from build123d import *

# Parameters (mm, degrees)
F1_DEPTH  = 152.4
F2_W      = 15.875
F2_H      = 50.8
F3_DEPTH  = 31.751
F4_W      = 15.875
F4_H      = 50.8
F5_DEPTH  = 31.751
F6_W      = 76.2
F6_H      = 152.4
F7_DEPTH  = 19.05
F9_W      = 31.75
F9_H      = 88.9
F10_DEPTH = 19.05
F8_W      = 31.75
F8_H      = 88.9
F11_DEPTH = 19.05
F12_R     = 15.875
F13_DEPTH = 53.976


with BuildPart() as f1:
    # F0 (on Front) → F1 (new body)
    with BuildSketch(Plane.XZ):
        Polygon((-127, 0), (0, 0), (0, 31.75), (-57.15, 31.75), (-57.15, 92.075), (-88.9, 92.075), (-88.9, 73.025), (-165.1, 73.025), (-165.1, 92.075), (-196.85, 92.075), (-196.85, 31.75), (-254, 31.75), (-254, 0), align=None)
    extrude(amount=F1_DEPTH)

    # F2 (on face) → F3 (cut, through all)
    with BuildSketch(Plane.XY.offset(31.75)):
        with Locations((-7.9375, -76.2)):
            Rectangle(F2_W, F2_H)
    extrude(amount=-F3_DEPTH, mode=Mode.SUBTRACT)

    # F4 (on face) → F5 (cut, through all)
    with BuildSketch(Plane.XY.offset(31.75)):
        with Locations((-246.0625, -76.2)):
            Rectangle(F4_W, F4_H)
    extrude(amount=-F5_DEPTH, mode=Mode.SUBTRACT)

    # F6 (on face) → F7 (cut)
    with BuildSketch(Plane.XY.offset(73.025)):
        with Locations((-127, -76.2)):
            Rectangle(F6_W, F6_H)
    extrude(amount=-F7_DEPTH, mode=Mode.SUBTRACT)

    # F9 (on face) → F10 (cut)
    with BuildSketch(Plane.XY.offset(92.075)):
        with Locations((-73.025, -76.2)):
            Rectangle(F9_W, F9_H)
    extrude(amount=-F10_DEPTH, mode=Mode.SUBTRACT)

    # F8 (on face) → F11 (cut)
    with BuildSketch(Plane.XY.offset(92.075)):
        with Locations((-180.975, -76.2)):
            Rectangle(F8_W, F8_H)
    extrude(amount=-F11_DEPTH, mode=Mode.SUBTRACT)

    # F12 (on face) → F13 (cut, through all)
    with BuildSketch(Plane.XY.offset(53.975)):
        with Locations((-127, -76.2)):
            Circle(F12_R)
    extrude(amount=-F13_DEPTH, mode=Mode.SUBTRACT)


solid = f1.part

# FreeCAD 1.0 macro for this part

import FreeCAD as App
import Part
import Sketcher
from FreeCAD import Vector
Q = App.Units.Quantity

doc = App.newDocument("Part")
params = doc.addObject("Spreadsheet::Sheet", "Params")
for row, (alias, value) in enumerate([
    ("sketch1_width", "3 in"),
    ("sketch1_width2", "10 in"),
    ("sketch1_width3", "2.25 in"),
    ("sketch1_height", "0.75 in"),
    ("sketch1_height2", "2.375 in"),
    ("pad1_length", "6 in"),
    ("sketch2_height", "2 in"),
    ("sketch2_width", "0.625 in"),
    ("sketch3_height", "2 in"),
    ("sketch3_width", "0.625 in"),
    ("sketch4_width", "3 in"),
    ("sketch4_height", "6 in"),
    ("pocket3_length", "0.75 in"),
    ("sketch5_height", "3.5 in"),
    ("sketch5_width", "1.25 in"),
    ("pocket4_length", "0.75 in"),
    ("sketch6_height", "3.5 in"),
    ("sketch6_width", "1.25 in"),
    ("pocket5_length", "0.75 in"),
    ("sketch7_diameter", "1.25 in"),
], start=1):
    params.set(f"A{row}", alias)
    params.set(f"B{row}", "=" + value)
    params.setAlias(f"B{row}", alias)

body = doc.addObject("PartDesign::Body", "Body")

# Sketch on XZ plane
sketch1 = body.newObject("Sketcher::SketchObject", "Sketch")
sketch1.AttachmentSupport = (doc.getObject("XZ_Plane"), [""])
sketch1.MapMode = "FlatFace"
sketch1.addGeometry([
    Part.LineSegment(Vector(0, 0, 0), Vector(0, 31.75, 0)),  # 0
    Part.LineSegment(Vector(0, 31.75, 0), Vector(-57.15, 31.75, 0)),  # 1
    Part.LineSegment(Vector(-57.15, 31.75, 0), Vector(-57.15, 92.075, 0)),  # 2
    Part.LineSegment(Vector(-57.15, 92.075, 0), Vector(-88.9, 92.075, 0)),  # 3
    Part.LineSegment(Vector(-88.9, 92.075, 0), Vector(-88.9, 73.025, 0)),  # 4
    Part.LineSegment(Vector(-88.9, 73.025, 0), Vector(-165.1, 73.025, 0)),  # 5
    Part.LineSegment(Vector(-165.1, 73.025, 0), Vector(-165.1, 92.075, 0)),  # 6
    Part.LineSegment(Vector(-165.1, 92.075, 0), Vector(-196.85, 92.075, 0)),  # 7
    Part.LineSegment(Vector(-196.85, 92.075, 0), Vector(-196.85, 31.75, 0)),  # 8
    Part.LineSegment(Vector(-196.85, 31.75, 0), Vector(-254, 31.75, 0)),  # 9
    Part.LineSegment(Vector(-254, 31.75, 0), Vector(-254, 0, 0)),  # 10
    Part.LineSegment(Vector(-254, 0, 0), Vector(0, 0, 0)),  # 11
], False)
sketch1.addConstraint([
    Sketcher.Constraint("Coincident", 0, 2, 1, 1),
    Sketcher.Constraint("Coincident", 1, 2, 2, 1),
    Sketcher.Constraint("Coincident", 2, 2, 3, 1),
    Sketcher.Constraint("Coincident", 3, 2, 4, 1),
    Sketcher.Constraint("Coincident", 4, 2, 5, 1),
    Sketcher.Constraint("Coincident", 5, 2, 6, 1),
    Sketcher.Constraint("Coincident", 6, 2, 7, 1),
    Sketcher.Constraint("Coincident", 7, 2, 8, 1),
    Sketcher.Constraint("Coincident", 8, 2, 9, 1),
    Sketcher.Constraint("Coincident", 9, 2, 10, 1),
    Sketcher.Constraint("Coincident", 10, 2, 11, 1),
    Sketcher.Constraint("Coincident", 11, 2, 0, 1),
    Sketcher.Constraint("Vertical", 0),
    Sketcher.Constraint("Horizontal", 1),
    Sketcher.Constraint("Vertical", 2),
    Sketcher.Constraint("Horizontal", 3),
    Sketcher.Constraint("Vertical", 4),
    Sketcher.Constraint("Horizontal", 5),
    Sketcher.Constraint("Vertical", 6),
    Sketcher.Constraint("Horizontal", 7),
    Sketcher.Constraint("Vertical", 8),
    Sketcher.Constraint("Horizontal", 9),
    Sketcher.Constraint("Vertical", 10),
    Sketcher.Constraint("Horizontal", 11),
    Sketcher.Constraint("Coincident", 11, 2, -1, 1),
    Sketcher.Constraint("Horizontal", 3, 2, 6, 2),
    Sketcher.Constraint("Horizontal", 1, 2, 8, 2),
    Sketcher.Constraint("Equal", 3, 7),
    Sketcher.Constraint("Equal", 1, 9),
    Sketcher.Constraint("Equal", 7, 0),
    Sketcher.Constraint("DistanceX", 5, 2, 5, 1, Q("3 in")),
    Sketcher.Constraint("DistanceX", 11, 1, 11, 2, Q("10 in")),
    Sketcher.Constraint("DistanceX", 1, 2, 1, 1, Q("2.25 in")),
    Sketcher.Constraint("DistanceY", 4, 2, 4, 1, Q("0.75 in")),
    Sketcher.Constraint("DistanceY", 2, 1, 2, 2, Q("2.375 in")),
])
sketch1.setExpression("Constraints[30]", "Params.sketch1_width")
sketch1.setExpression("Constraints[31]", "Params.sketch1_width2")
sketch1.setExpression("Constraints[32]", "Params.sketch1_width3")
sketch1.setExpression("Constraints[33]", "Params.sketch1_height")
sketch1.setExpression("Constraints[34]", "Params.sketch1_height2")
pad1 = body.newObject("PartDesign::Pad", "Pad")
pad1.Profile = sketch1
pad1.setExpression("Length", "Params.pad1_length")

# Sketch on XY plane
sketch2 = body.newObject("Sketcher::SketchObject", "Sketch001")
sketch2.AttachmentSupport = (doc.getObject("XY_Plane"), [""])
sketch2.MapMode = "FlatFace"
sketch2.AttachmentOffset = App.Placement(Vector(0, 0, 1.25 * 25.4), App.Rotation())
sketch2.addGeometry([
    Part.LineSegment(Vector(-15.875, -50.8, 0), Vector(-15.875, -101.6, 0)),
    Part.LineSegment(Vector(-15.875, -101.6, 0), Vector(0, -101.6, 0)),
    Part.LineSegment(Vector(0, -101.6, 0), Vector(0, -50.8, 0)),
    Part.LineSegment(Vector(0, -50.8, 0), Vector(-15.875, -50.8, 0)),
], False)
sketch2.addConstraint([
    Sketcher.Constraint("Coincident", 0, 2, 1, 1),
    Sketcher.Constraint("Coincident", 1, 2, 2, 1),
    Sketcher.Constraint("Coincident", 2, 2, 3, 1),
    Sketcher.Constraint("Coincident", 3, 2, 0, 1),
    Sketcher.Constraint("Vertical", 0),
    Sketcher.Constraint("Horizontal", 1),
    Sketcher.Constraint("Vertical", 2),
    Sketcher.Constraint("Horizontal", 3),
    Sketcher.Constraint("PointOnObject", 1, 2, -2),
    Sketcher.Constraint("DistanceY", 0, 2, 0, 1, Q("2 in")),
    Sketcher.Constraint("DistanceY", 0, 2, -1, 1, Q("4 in")),
    Sketcher.Constraint("DistanceX", 1, 1, 1, 2, Q("0.625 in")),
])
sketch2.setExpression("Constraints[9]", "Params.sketch2_height")
sketch2.setExpression("Constraints[11]", "Params.sketch2_width")
pocket1 = body.newObject("PartDesign::Pocket", "Pocket")
pocket1.Profile = sketch2
pocket1.Type = "ThroughAll"

# Sketch on XY plane
sketch3 = body.newObject("Sketcher::SketchObject", "Sketch002")
sketch3.AttachmentSupport = (doc.getObject("XY_Plane"), [""])
sketch3.MapMode = "FlatFace"
sketch3.AttachmentOffset = App.Placement(Vector(0, 0, 1.25 * 25.4), App.Rotation())
sketch3.addGeometry([
    Part.LineSegment(Vector(-254, -50.8, 0), Vector(-254, -101.6, 0)),
    Part.LineSegment(Vector(-254, -101.6, 0), Vector(-238.125, -101.6, 0)),
    Part.LineSegment(Vector(-238.125, -101.6, 0), Vector(-238.125, -50.8, 0)),
    Part.LineSegment(Vector(-238.125, -50.8, 0), Vector(-254, -50.8, 0)),
], False)
sketch3.addConstraint([
    Sketcher.Constraint("Coincident", 0, 2, 1, 1),
    Sketcher.Constraint("Coincident", 1, 2, 2, 1),
    Sketcher.Constraint("Coincident", 2, 2, 3, 1),
    Sketcher.Constraint("Coincident", 3, 2, 0, 1),
    Sketcher.Constraint("Vertical", 0),
    Sketcher.Constraint("Horizontal", 1),
    Sketcher.Constraint("Vertical", 2),
    Sketcher.Constraint("Horizontal", 3),
    Sketcher.Constraint("DistanceY", 0, 2, 0, 1, Q("2 in")),
    Sketcher.Constraint("DistanceX", 0, 2, -1, 1, Q("10 in")),
    Sketcher.Constraint("DistanceY", 0, 2, -1, 1, Q("4 in")),
    Sketcher.Constraint("DistanceX", 1, 1, 1, 2, Q("0.625 in")),
])
sketch3.setExpression("Constraints[8]", "Params.sketch3_height")
sketch3.setExpression("Constraints[11]", "Params.sketch3_width")
pocket2 = body.newObject("PartDesign::Pocket", "Pocket001")
pocket2.Profile = sketch3
pocket2.Type = "ThroughAll"

# Sketch on XY plane
sketch4 = body.newObject("Sketcher::SketchObject", "Sketch003")
sketch4.AttachmentSupport = (doc.getObject("XY_Plane"), [""])
sketch4.MapMode = "FlatFace"
sketch4.AttachmentOffset = App.Placement(Vector(0, 0, 2.875 * 25.4), App.Rotation())
sketch4.addGeometry([
    Part.LineSegment(Vector(-165.1, 0, 0), Vector(-165.1, -152.4, 0)),
    Part.LineSegment(Vector(-165.1, -152.4, 0), Vector(-88.9, -152.4, 0)),
    Part.LineSegment(Vector(-88.9, -152.4, 0), Vector(-88.9, 0, 0)),
    Part.LineSegment(Vector(-88.9, 0, 0), Vector(-165.1, 0, 0)),
], False)
sketch4.addConstraint([
    Sketcher.Constraint("Coincident", 0, 2, 1, 1),
    Sketcher.Constraint("Coincident", 1, 2, 2, 1),
    Sketcher.Constraint("Coincident", 2, 2, 3, 1),
    Sketcher.Constraint("Coincident", 3, 2, 0, 1),
    Sketcher.Constraint("Vertical", 0),
    Sketcher.Constraint("Horizontal", 1),
    Sketcher.Constraint("Vertical", 2),
    Sketcher.Constraint("Horizontal", 3),
    Sketcher.Constraint("PointOnObject", 2, 2, -1),
    Sketcher.Constraint("DistanceX", 1, 1, 1, 2, Q("3 in")),
    Sketcher.Constraint("DistanceY", 0, 2, 0, 1, Q("6 in")),
    Sketcher.Constraint("DistanceX", 0, 2, -1, 1, Q("6.5 in")),
])
sketch4.setExpression("Constraints[9]", "Params.sketch4_width")
sketch4.setExpression("Constraints[10]", "Params.sketch4_height")
pocket3 = body.newObject("PartDesign::Pocket", "Pocket002")
pocket3.Profile = sketch4
pocket3.setExpression("Length", "Params.pocket3_length")

# Sketch on XY plane
sketch5 = body.newObject("Sketcher::SketchObject", "Sketch004")
sketch5.AttachmentSupport = (doc.getObject("XY_Plane"), [""])
sketch5.MapMode = "FlatFace"
sketch5.AttachmentOffset = App.Placement(Vector(0, 0, 3.625 * 25.4), App.Rotation())
sketch5.addGeometry([
    Part.LineSegment(Vector(-88.9, -31.75, 0), Vector(-88.9, -120.65, 0)),
    Part.LineSegment(Vector(-88.9, -120.65, 0), Vector(-57.15, -120.65, 0)),
    Part.LineSegment(Vector(-57.15, -120.65, 0), Vector(-57.15, -31.75, 0)),
    Part.LineSegment(Vector(-57.15, -31.75, 0), Vector(-88.9, -31.75, 0)),
], False)
sketch5.addConstraint([
    Sketcher.Constraint("Coincident", 0, 2, 1, 1),
    Sketcher.Constraint("Coincident", 1, 2, 2, 1),
    Sketcher.Constraint("Coincident", 2, 2, 3, 1),
    Sketcher.Constraint("Coincident", 3, 2, 0, 1),
    Sketcher.Constraint("Vertical", 0),
    Sketcher.Constraint("Horizontal", 1),
    Sketcher.Constraint("Vertical", 2),
    Sketcher.Constraint("Horizontal", 3),
    Sketcher.Constraint("DistanceY", 0, 2, 0, 1, Q("3.5 in")),
    Sketcher.Constraint("DistanceX", 1, 1, 1, 2, Q("1.25 in")),
    Sketcher.Constraint("DistanceX", 0, 2, -1, 1, Q("3.5 in")),
    Sketcher.Constraint("DistanceY", 0, 2, -1, 1, Q("4.75 in")),
])
sketch5.setExpression("Constraints[8]", "Params.sketch5_height")
sketch5.setExpression("Constraints[9]", "Params.sketch5_width")
pocket4 = body.newObject("PartDesign::Pocket", "Pocket003")
pocket4.Profile = sketch5
pocket4.setExpression("Length", "Params.pocket4_length")

# Sketch on XY plane
sketch6 = body.newObject("Sketcher::SketchObject", "Sketch005")
sketch6.AttachmentSupport = (doc.getObject("XY_Plane"), [""])
sketch6.MapMode = "FlatFace"
sketch6.AttachmentOffset = App.Placement(Vector(0, 0, 3.625 * 25.4), App.Rotation())
sketch6.addGeometry([
    Part.LineSegment(Vector(-196.85, -31.75, 0), Vector(-196.85, -120.65, 0)),
    Part.LineSegment(Vector(-196.85, -120.65, 0), Vector(-165.1, -120.65, 0)),
    Part.LineSegment(Vector(-165.1, -120.65, 0), Vector(-165.1, -31.75, 0)),
    Part.LineSegment(Vector(-165.1, -31.75, 0), Vector(-196.85, -31.75, 0)),
], False)
sketch6.addConstraint([
    Sketcher.Constraint("Coincident", 0, 2, 1, 1),
    Sketcher.Constraint("Coincident", 1, 2, 2, 1),
    Sketcher.Constraint("Coincident", 2, 2, 3, 1),
    Sketcher.Constraint("Coincident", 3, 2, 0, 1),
    Sketcher.Constraint("Vertical", 0),
    Sketcher.Constraint("Horizontal", 1),
    Sketcher.Constraint("Vertical", 2),
    Sketcher.Constraint("Horizontal", 3),
    Sketcher.Constraint("DistanceY", 0, 2, 0, 1, Q("3.5 in")),
    Sketcher.Constraint("DistanceX", 1, 1, 1, 2, Q("1.25 in")),
    Sketcher.Constraint("DistanceX", 1, 2, -1, 1, Q("6.5 in")),
    Sketcher.Constraint("DistanceY", 0, 2, -1, 1, Q("4.75 in")),
])
sketch6.setExpression("Constraints[8]", "Params.sketch6_height")
sketch6.setExpression("Constraints[9]", "Params.sketch6_width")
pocket5 = body.newObject("PartDesign::Pocket", "Pocket004")
pocket5.Profile = sketch6
pocket5.setExpression("Length", "Params.pocket5_length")

# Sketch on XY plane
sketch7 = body.newObject("Sketcher::SketchObject", "Sketch006")
sketch7.AttachmentSupport = (doc.getObject("XY_Plane"), [""])
sketch7.MapMode = "FlatFace"
sketch7.AttachmentOffset = App.Placement(Vector(0, 0, 2.125 * 25.4), App.Rotation())
sketch7.addGeometry(Part.Circle(Vector(-127, -76.2, 0), Vector(0, 0, 1), 15.875), False)
sketch7.addConstraint([
    Sketcher.Constraint("Diameter", 0, Q("1.25 in")),
    Sketcher.Constraint("DistanceX", 0, 3, -1, 1, Q("5 in")),
    Sketcher.Constraint("DistanceY", 0, 3, -1, 1, Q("3 in")),
])
sketch7.setExpression("Constraints[0]", "Params.sketch7_diameter")
pocket6 = body.newObject("PartDesign::Pocket", "Pocket005")
pocket6.Profile = sketch7
pocket6.Type = "ThroughAll"

doc.recompute()
